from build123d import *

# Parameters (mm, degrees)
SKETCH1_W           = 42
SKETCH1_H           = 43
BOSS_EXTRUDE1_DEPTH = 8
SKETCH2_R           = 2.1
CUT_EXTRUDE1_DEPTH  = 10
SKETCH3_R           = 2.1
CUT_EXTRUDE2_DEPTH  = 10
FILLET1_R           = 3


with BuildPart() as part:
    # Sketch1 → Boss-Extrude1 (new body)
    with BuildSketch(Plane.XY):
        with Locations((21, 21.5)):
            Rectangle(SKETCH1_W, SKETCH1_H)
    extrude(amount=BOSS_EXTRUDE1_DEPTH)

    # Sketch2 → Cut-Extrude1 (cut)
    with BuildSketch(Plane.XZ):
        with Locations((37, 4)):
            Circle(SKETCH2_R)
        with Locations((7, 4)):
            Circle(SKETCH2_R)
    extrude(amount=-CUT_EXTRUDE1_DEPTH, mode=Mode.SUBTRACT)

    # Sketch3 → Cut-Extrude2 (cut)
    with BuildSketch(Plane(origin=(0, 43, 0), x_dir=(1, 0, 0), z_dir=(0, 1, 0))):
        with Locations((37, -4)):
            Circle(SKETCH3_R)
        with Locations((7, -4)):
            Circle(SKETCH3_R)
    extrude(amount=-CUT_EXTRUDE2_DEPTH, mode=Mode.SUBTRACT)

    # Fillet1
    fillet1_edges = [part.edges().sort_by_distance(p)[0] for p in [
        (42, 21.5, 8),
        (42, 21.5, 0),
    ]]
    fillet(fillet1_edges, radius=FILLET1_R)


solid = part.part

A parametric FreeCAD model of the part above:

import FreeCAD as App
import Part
import Sketcher


def edges_at(feature, points):
    """Names of the edges that pass closest to the given points."""
    edges = feature.Shape.Edges
    near = lambda p: min(range(len(edges)), key=lambda i: edges[i].distToShape(Part.Vertex(*p))[0])
    return sorted({f"Edge{near(p) + 1}" for p in points})


def add_polygon(sketch, points):
    """Adds a closed chain of lines whose ends are joined by coincident constraints."""
    first, n = sketch.GeometryCount, len(points)
    for a, b in zip(points, points[1:] + points[:1]):
        sketch.addGeometry(Part.LineSegment(App.Vector(*a, 0), App.Vector(*b, 0)), False)
    for i in range(n):
        sketch.addConstraint(Sketcher.Constraint("Coincident", first + i, 2, first + (i + 1) % n, 1))

doc = App.newDocument("Part")
body = doc.addObject("PartDesign::Body", "Body")

sketch1 = body.newObject("Sketcher::SketchObject", "Sketch")
sketch1.AttachmentSupport = (doc.getObject("XY_Plane"), [""])
sketch1.MapMode = "FlatFace"
add_polygon(sketch1, [(0, 43), (0, 0), (42, 0), (42, 43)])
sketch1.addConstraint(Sketcher.Constraint("Vertical", 0))
sketch1.addConstraint(Sketcher.Constraint("Horizontal", 1))
sketch1.addConstraint(Sketcher.Constraint("Vertical", 2))
sketch1.addConstraint(Sketcher.Constraint("Horizontal", 3))
sketch1.addConstraint(Sketcher.Constraint("Coincident", 0, 2, -1, 1))
sketch1.addConstraint(Sketcher.Constraint("DistanceX", 1, 1, 1, 2, 42.0))
sketch1.addConstraint(Sketcher.Constraint("DistanceY", 0, 2, 0, 1, 43.0))
pad1 = body.newObject("PartDesign::Pad", "Pad")
pad1.Profile = sketch1
pad1.Length = 8

sketch2 = body.newObject("Sketcher::SketchObject", "Sketch001")
sketch2.AttachmentSupport = (doc.getObject("XZ_Plane"), [""])
sketch2.MapMode = "FlatFace"
sketch2.addGeometry(Part.Circle(App.Vector(37, 4, 0), App.Vector(0, 0, 1), 2.1), False)
sketch2.addGeometry(Part.Circle(App.Vector(7, 4, 0), App.Vector(0, 0, 1), 2.1), False)
sketch2.addConstraint(Sketcher.Constraint("Equal", 0, 1))
sketch2.addConstraint(Sketcher.Constraint("Horizontal", 0, 3, 1, 3))
sketch2.addConstraint(Sketcher.Constraint("Diameter", 0, 4.2))
sketch2.addConstraint(Sketcher.Constraint("DistanceX", -1, 1, 0, 3, 37.0))
sketch2.addConstraint(Sketcher.Constraint("DistanceY", -1, 1, 0, 3, 4.0))
sketch2.addConstraint(Sketcher.Constraint("DistanceX", -1, 1, 1, 3, 7.0))
pocket1 = body.newObject("PartDesign::Pocket", "Pocket")
pocket1.Profile = sketch2
pocket1.Length = 10

sketch3 = body.newObject("Sketcher::SketchObject", "Sketch002")
sketch3.AttachmentSupport = (doc.getObject("XZ_Plane"), [""])
sketch3.MapMode = "FlatFace"
sketch3.AttachmentOffset = App.Placement(App.Vector(0, 0, -43), App.Rotation())
sketch3.addGeometry(Part.Circle(App.Vector(37, 4, 0), App.Vector(0, 0, 1), 2.1), False)
sketch3.addGeometry(Part.Circle(App.Vector(7, 4, 0), App.Vector(0, 0, 1), 2.1), False)
sketch3.addConstraint(Sketcher.Constraint("Equal", 0, 1))
sketch3.addConstraint(Sketcher.Constraint("Horizontal", 0, 3, 1, 3))
sketch3.addConstraint(Sketcher.Constraint("Diameter", 0, 4.2))
sketch3.addConstraint(Sketcher.Constraint("DistanceX", -1, 1, 0, 3, 37.0))
sketch3.addConstraint(Sketcher.Constraint("DistanceY", -1, 1, 0, 3, 4.0))
sketch3.addConstraint(Sketcher.Constraint("DistanceX", -1, 1, 1, 3, 7.0))
pocket2 = body.newObject("PartDesign::Pocket", "Pocket001")
pocket2.Profile = sketch3
pocket2.Length = 10
pocket2.Reversed = True
doc.recompute()

fillet = body.newObject("PartDesign::Fillet", "Fillet")
fillet.Base = (pocket2, edges_at(pocket2, [(42, 21.5, 8), (42, 21.5, 0)]))
fillet.Radius = 3

doc.recompute()
